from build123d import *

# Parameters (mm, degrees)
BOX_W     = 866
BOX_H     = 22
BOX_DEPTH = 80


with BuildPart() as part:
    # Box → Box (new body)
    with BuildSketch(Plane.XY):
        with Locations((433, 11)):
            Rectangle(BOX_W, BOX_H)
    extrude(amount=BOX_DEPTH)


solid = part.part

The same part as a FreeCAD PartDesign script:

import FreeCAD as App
import Part
import Sketcher

doc = App.newDocument("Part")
params = doc.addObject("Spreadsheet::Sheet", "Params")
for row, (alias, value) in enumerate([
    ("sketch1_width", "866 mm"),
    ("sketch1_height", "22 mm"),
    ("pad1_length", "80 mm"),
], start=1):
    params.set(f"A{row}", alias)
    params.set(f"B{row}", "=" + value)
    params.setAlias(f"B{row}", alias)

body = doc.addObject("PartDesign::Body", "Body")

sketch1 = body.newObject("Sketcher::SketchObject", "Sketch")
sketch1.AttachmentSupport = (doc.getObject("XY_Plane"), [""])
sketch1.MapMode = "FlatFace"
sketch1.addGeometry([
    Part.LineSegment(App.Vector(0, 22, 0), App.Vector(0, 0, 0)),
    Part.LineSegment(App.Vector(0, 0, 0), App.Vector(866, 0, 0)),
    Part.LineSegment(App.Vector(866, 0, 0), App.Vector(866, 22, 0)),
    Part.LineSegment(App.Vector(866, 22, 0), App.Vector(0, 22, 0)),
], False)
sketch1.addConstraint([
    Sketcher.Constraint("Coincident", 0, 2, 1, 1),
    Sketcher.Constraint("Coincident", 1, 2, 2, 1),
    Sketcher.Constraint("Coincident", 2, 2, 3, 1),
    Sketcher.Constraint("Coincident", 3, 2, 0, 1),
    Sketcher.Constraint("Vertical", 0),
    Sketcher.Constraint("Horizontal", 1),
    Sketcher.Constraint("Vertical", 2),
    Sketcher.Constraint("Horizontal", 3),
    Sketcher.Constraint("Coincident", 0, 2, -1, 1),
    Sketcher.Constraint("DistanceX", 1, 1, 1, 2, 866.0),
    Sketcher.Constraint("DistanceY", 0, 2, 0, 1, 22.0),
])
sketch1.setExpression("Constraints[9]", "Params.sketch1_width")
sketch1.setExpression("Constraints[10]", "Params.sketch1_height")
pad1 = body.newObject("PartDesign::Pad", "Pad")
pad1.Profile = sketch1
pad1.setExpression("Length", "Params.pad1_length")

doc.recompute()
